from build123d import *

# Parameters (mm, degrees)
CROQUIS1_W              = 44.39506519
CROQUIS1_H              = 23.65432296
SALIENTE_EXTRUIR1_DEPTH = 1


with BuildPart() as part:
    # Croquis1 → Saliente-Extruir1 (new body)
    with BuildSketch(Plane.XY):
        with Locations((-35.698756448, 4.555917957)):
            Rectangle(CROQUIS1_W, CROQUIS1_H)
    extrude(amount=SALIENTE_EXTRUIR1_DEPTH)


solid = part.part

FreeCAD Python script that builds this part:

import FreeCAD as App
import Part
import Sketcher
from FreeCAD import Vector
Q = App.Units.Quantity

doc = App.newDocument("Part")
body = doc.addObject("PartDesign::Body", "Body")

sketch1 = body.newObject("Sketcher::SketchObject", "Sketch")
sketch1.AttachmentSupport = (doc.getObject("XY_Plane"), [""])
sketch1.MapMode = "FlatFace"
sketch1.addGeometry([
    Part.LineSegment(Vector(-58, 16, 0), Vector(-58, -7, 0)),
    Part.LineSegment(Vector(-58, -7, 0), Vector(-14, -7, 0)),
    Part.LineSegment(Vector(-14, -7, 0), Vector(-14, 16, 0)),
    Part.LineSegment(Vector(-14, 16, 0), Vector(-58, 16, 0)),
], False)
sketch1.addConstraint([
    Sketcher.Constraint("Coincident", 0, 2, 1, 1),
    Sketcher.Constraint("Coincident", 1, 2, 2, 1),
    Sketcher.Constraint("Coincident", 2, 2, 3, 1),
    Sketcher.Constraint("Coincident", 3, 2, 0, 1),
    Sketcher.Constraint("Vertical", 0),
    Sketcher.Constraint("Horizontal", 1),
    Sketcher.Constraint("Vertical", 2),
    Sketcher.Constraint("Horizontal", 3),
    Sketcher.Constraint("DistanceX", 1, 1, 1, 2, Q("44.395065 mm")),
    Sketcher.Constraint("DistanceY", 0, 2, 0, 1, Q("23.654323 mm")),
    Sketcher.Constraint("DistanceX", 0, 2, -1, 1, Q("57.896289 mm")),
    Sketcher.Constraint("DistanceY", -1, 1, 2, 2, Q("16.383079 mm")),
])
pad1 = body.newObject("PartDesign::Pad", "Pad")
pad1.Profile = sketch1
pad1.Length = 1

doc.recompute()
